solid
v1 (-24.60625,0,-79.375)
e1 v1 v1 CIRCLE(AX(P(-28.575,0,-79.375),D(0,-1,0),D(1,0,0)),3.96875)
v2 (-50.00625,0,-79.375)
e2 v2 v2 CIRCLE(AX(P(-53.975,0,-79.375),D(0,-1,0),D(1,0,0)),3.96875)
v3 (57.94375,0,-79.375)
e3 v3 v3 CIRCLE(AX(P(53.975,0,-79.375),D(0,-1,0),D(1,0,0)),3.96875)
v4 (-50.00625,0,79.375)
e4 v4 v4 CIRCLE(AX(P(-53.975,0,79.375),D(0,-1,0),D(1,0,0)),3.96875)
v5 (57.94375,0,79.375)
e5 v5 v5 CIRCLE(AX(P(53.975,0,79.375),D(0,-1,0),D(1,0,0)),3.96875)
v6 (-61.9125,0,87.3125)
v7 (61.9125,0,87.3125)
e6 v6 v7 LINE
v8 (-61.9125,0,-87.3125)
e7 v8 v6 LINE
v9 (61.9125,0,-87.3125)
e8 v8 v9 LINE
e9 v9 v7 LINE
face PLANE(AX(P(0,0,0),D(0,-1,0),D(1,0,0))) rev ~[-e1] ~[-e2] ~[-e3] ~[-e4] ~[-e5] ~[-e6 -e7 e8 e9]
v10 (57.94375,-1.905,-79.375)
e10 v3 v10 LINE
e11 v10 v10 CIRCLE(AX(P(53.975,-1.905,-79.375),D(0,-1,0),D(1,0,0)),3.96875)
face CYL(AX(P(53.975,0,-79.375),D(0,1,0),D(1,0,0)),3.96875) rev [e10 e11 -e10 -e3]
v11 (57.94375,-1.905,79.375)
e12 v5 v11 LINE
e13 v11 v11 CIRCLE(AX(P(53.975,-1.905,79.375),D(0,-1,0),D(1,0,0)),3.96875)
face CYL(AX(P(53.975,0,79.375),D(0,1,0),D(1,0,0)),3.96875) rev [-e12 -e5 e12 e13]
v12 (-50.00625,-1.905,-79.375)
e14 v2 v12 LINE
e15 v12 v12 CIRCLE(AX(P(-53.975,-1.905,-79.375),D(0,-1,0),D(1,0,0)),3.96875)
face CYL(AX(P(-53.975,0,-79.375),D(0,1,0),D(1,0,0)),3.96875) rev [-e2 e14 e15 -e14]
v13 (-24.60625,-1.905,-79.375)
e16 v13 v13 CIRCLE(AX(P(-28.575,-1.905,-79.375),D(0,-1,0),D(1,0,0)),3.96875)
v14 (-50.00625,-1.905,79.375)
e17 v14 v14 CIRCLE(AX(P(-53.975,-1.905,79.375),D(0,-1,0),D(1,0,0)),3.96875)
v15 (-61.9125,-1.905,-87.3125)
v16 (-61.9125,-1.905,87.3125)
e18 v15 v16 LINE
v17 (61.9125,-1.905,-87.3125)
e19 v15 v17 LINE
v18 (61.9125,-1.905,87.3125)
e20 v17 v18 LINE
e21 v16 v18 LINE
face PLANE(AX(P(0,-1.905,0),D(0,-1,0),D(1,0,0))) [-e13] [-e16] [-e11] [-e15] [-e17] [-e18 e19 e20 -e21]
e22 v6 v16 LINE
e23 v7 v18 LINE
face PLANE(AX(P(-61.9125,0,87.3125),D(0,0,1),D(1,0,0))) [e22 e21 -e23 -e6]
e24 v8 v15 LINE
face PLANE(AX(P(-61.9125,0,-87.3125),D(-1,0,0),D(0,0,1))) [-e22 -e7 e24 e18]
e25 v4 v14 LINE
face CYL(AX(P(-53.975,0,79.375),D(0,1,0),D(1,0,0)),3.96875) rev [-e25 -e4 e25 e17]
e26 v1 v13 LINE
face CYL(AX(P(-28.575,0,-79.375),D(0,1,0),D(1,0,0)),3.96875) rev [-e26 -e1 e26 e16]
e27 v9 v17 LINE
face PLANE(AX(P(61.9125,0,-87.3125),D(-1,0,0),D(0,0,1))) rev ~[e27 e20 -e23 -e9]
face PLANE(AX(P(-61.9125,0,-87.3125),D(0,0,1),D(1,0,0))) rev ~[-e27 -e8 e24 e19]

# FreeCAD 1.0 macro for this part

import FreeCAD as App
import Part
import Sketcher

V = App.Vector
Q = App.Units.Quantity


def add_polygon(sketch, points):
    """Adds a closed chain of lines whose ends are joined by coincident constraints."""
    first, n = sketch.GeometryCount, len(points)
    for a, b in zip(points, points[1:] + points[:1]):
        sketch.addGeometry(Part.LineSegment(App.Vector(*a, 0), App.Vector(*b, 0)), False)
    for i in range(n):
        sketch.addConstraint(Sketcher.Constraint("Coincident", first + i, 2, first + (i + 1) % n, 1))

doc = App.newDocument("Part")
body = doc.addObject("PartDesign::Body", "Body")

sketch1 = body.newObject("Sketcher::SketchObject", "Sketch")
sketch1.AttachmentSupport = (doc.getObject("XZ_Plane"), [""])
sketch1.MapMode = "FlatFace"
add_polygon(sketch1, [(-61.9, 87.3), (-61.9, -87.3), (61.9, -87.3), (61.9, 87.3)])
sketch1.addGeometry(Part.Circle(V(-54, -79.4, 0), V(0, 0, 1), 4), False)
sketch1.addGeometry(Part.Circle(V(-28.6, -79.4, 0), V(0, 0, 1), 4), False)
sketch1.addGeometry(Part.Circle(V(54, -79.4, 0), V(0, 0, 1), 4), False)
sketch1.addGeometry(Part.Circle(V(-54, 79.4, 0), V(0, 0, 1), 4), False)
sketch1.addGeometry(Part.Circle(V(54, 79.4, 0), V(0, 0, 1), 4), False)
sketch1.addConstraint(Sketcher.Constraint("Vertical", 0))
sketch1.addConstraint(Sketcher.Constraint("Horizontal", 1))
sketch1.addConstraint(Sketcher.Constraint("Vertical", 2))
sketch1.addConstraint(Sketcher.Constraint("Horizontal", 3))
sketch1.addConstraint(Sketcher.Constraint("Equal", 4, 5))
sketch1.addConstraint(Sketcher.Constraint("Equal", 5, 6))
sketch1.addConstraint(Sketcher.Constraint("Equal", 6, 7))
sketch1.addConstraint(Sketcher.Constraint("Equal", 7, 8))
sketch1.addConstraint(Sketcher.Constraint("Symmetric", 6, 3, 7, 3, -1, 1))
sketch1.addConstraint(Sketcher.Constraint("Symmetric", 4, 3, 8, 3, -1, 1))
sketch1.addConstraint(Sketcher.Constraint("Symmetric", 0, 2, 2, 2, -1, 1))
sketch1.addConstraint(Sketcher.Constraint("Symmetric", 4, 3, 6, 3, -2))
sketch1.addConstraint(Sketcher.Constraint("Horizontal", 4, 3, 5, 3))
sketch1.addConstraint(Sketcher.Constraint("Diameter", 4, Q("0.3125 in")))
sketch1.addConstraint(Sketcher.Constraint("DistanceX", 4, 3, 5, 3, Q("1 in")))
sketch1.addConstraint(Sketcher.Constraint("DistanceX", 1, 1, 1, 2, Q("4.875 in")))
sketch1.addConstraint(Sketcher.Constraint("DistanceY", 0, 2, 0, 1, Q("6.875 in")))
sketch1.addConstraint(Sketcher.Constraint("DistanceX", 5, 3, 6, 3, Q("3.25 in")))
sketch1.addConstraint(Sketcher.Constraint("DistanceY", 4, 3, 7, 3, Q("6.25 in")))
pad1 = body.newObject("PartDesign::Pad", "Pad")
pad1.Profile = sketch1
pad1.Length = Q("0.075 in")

doc.recompute()
